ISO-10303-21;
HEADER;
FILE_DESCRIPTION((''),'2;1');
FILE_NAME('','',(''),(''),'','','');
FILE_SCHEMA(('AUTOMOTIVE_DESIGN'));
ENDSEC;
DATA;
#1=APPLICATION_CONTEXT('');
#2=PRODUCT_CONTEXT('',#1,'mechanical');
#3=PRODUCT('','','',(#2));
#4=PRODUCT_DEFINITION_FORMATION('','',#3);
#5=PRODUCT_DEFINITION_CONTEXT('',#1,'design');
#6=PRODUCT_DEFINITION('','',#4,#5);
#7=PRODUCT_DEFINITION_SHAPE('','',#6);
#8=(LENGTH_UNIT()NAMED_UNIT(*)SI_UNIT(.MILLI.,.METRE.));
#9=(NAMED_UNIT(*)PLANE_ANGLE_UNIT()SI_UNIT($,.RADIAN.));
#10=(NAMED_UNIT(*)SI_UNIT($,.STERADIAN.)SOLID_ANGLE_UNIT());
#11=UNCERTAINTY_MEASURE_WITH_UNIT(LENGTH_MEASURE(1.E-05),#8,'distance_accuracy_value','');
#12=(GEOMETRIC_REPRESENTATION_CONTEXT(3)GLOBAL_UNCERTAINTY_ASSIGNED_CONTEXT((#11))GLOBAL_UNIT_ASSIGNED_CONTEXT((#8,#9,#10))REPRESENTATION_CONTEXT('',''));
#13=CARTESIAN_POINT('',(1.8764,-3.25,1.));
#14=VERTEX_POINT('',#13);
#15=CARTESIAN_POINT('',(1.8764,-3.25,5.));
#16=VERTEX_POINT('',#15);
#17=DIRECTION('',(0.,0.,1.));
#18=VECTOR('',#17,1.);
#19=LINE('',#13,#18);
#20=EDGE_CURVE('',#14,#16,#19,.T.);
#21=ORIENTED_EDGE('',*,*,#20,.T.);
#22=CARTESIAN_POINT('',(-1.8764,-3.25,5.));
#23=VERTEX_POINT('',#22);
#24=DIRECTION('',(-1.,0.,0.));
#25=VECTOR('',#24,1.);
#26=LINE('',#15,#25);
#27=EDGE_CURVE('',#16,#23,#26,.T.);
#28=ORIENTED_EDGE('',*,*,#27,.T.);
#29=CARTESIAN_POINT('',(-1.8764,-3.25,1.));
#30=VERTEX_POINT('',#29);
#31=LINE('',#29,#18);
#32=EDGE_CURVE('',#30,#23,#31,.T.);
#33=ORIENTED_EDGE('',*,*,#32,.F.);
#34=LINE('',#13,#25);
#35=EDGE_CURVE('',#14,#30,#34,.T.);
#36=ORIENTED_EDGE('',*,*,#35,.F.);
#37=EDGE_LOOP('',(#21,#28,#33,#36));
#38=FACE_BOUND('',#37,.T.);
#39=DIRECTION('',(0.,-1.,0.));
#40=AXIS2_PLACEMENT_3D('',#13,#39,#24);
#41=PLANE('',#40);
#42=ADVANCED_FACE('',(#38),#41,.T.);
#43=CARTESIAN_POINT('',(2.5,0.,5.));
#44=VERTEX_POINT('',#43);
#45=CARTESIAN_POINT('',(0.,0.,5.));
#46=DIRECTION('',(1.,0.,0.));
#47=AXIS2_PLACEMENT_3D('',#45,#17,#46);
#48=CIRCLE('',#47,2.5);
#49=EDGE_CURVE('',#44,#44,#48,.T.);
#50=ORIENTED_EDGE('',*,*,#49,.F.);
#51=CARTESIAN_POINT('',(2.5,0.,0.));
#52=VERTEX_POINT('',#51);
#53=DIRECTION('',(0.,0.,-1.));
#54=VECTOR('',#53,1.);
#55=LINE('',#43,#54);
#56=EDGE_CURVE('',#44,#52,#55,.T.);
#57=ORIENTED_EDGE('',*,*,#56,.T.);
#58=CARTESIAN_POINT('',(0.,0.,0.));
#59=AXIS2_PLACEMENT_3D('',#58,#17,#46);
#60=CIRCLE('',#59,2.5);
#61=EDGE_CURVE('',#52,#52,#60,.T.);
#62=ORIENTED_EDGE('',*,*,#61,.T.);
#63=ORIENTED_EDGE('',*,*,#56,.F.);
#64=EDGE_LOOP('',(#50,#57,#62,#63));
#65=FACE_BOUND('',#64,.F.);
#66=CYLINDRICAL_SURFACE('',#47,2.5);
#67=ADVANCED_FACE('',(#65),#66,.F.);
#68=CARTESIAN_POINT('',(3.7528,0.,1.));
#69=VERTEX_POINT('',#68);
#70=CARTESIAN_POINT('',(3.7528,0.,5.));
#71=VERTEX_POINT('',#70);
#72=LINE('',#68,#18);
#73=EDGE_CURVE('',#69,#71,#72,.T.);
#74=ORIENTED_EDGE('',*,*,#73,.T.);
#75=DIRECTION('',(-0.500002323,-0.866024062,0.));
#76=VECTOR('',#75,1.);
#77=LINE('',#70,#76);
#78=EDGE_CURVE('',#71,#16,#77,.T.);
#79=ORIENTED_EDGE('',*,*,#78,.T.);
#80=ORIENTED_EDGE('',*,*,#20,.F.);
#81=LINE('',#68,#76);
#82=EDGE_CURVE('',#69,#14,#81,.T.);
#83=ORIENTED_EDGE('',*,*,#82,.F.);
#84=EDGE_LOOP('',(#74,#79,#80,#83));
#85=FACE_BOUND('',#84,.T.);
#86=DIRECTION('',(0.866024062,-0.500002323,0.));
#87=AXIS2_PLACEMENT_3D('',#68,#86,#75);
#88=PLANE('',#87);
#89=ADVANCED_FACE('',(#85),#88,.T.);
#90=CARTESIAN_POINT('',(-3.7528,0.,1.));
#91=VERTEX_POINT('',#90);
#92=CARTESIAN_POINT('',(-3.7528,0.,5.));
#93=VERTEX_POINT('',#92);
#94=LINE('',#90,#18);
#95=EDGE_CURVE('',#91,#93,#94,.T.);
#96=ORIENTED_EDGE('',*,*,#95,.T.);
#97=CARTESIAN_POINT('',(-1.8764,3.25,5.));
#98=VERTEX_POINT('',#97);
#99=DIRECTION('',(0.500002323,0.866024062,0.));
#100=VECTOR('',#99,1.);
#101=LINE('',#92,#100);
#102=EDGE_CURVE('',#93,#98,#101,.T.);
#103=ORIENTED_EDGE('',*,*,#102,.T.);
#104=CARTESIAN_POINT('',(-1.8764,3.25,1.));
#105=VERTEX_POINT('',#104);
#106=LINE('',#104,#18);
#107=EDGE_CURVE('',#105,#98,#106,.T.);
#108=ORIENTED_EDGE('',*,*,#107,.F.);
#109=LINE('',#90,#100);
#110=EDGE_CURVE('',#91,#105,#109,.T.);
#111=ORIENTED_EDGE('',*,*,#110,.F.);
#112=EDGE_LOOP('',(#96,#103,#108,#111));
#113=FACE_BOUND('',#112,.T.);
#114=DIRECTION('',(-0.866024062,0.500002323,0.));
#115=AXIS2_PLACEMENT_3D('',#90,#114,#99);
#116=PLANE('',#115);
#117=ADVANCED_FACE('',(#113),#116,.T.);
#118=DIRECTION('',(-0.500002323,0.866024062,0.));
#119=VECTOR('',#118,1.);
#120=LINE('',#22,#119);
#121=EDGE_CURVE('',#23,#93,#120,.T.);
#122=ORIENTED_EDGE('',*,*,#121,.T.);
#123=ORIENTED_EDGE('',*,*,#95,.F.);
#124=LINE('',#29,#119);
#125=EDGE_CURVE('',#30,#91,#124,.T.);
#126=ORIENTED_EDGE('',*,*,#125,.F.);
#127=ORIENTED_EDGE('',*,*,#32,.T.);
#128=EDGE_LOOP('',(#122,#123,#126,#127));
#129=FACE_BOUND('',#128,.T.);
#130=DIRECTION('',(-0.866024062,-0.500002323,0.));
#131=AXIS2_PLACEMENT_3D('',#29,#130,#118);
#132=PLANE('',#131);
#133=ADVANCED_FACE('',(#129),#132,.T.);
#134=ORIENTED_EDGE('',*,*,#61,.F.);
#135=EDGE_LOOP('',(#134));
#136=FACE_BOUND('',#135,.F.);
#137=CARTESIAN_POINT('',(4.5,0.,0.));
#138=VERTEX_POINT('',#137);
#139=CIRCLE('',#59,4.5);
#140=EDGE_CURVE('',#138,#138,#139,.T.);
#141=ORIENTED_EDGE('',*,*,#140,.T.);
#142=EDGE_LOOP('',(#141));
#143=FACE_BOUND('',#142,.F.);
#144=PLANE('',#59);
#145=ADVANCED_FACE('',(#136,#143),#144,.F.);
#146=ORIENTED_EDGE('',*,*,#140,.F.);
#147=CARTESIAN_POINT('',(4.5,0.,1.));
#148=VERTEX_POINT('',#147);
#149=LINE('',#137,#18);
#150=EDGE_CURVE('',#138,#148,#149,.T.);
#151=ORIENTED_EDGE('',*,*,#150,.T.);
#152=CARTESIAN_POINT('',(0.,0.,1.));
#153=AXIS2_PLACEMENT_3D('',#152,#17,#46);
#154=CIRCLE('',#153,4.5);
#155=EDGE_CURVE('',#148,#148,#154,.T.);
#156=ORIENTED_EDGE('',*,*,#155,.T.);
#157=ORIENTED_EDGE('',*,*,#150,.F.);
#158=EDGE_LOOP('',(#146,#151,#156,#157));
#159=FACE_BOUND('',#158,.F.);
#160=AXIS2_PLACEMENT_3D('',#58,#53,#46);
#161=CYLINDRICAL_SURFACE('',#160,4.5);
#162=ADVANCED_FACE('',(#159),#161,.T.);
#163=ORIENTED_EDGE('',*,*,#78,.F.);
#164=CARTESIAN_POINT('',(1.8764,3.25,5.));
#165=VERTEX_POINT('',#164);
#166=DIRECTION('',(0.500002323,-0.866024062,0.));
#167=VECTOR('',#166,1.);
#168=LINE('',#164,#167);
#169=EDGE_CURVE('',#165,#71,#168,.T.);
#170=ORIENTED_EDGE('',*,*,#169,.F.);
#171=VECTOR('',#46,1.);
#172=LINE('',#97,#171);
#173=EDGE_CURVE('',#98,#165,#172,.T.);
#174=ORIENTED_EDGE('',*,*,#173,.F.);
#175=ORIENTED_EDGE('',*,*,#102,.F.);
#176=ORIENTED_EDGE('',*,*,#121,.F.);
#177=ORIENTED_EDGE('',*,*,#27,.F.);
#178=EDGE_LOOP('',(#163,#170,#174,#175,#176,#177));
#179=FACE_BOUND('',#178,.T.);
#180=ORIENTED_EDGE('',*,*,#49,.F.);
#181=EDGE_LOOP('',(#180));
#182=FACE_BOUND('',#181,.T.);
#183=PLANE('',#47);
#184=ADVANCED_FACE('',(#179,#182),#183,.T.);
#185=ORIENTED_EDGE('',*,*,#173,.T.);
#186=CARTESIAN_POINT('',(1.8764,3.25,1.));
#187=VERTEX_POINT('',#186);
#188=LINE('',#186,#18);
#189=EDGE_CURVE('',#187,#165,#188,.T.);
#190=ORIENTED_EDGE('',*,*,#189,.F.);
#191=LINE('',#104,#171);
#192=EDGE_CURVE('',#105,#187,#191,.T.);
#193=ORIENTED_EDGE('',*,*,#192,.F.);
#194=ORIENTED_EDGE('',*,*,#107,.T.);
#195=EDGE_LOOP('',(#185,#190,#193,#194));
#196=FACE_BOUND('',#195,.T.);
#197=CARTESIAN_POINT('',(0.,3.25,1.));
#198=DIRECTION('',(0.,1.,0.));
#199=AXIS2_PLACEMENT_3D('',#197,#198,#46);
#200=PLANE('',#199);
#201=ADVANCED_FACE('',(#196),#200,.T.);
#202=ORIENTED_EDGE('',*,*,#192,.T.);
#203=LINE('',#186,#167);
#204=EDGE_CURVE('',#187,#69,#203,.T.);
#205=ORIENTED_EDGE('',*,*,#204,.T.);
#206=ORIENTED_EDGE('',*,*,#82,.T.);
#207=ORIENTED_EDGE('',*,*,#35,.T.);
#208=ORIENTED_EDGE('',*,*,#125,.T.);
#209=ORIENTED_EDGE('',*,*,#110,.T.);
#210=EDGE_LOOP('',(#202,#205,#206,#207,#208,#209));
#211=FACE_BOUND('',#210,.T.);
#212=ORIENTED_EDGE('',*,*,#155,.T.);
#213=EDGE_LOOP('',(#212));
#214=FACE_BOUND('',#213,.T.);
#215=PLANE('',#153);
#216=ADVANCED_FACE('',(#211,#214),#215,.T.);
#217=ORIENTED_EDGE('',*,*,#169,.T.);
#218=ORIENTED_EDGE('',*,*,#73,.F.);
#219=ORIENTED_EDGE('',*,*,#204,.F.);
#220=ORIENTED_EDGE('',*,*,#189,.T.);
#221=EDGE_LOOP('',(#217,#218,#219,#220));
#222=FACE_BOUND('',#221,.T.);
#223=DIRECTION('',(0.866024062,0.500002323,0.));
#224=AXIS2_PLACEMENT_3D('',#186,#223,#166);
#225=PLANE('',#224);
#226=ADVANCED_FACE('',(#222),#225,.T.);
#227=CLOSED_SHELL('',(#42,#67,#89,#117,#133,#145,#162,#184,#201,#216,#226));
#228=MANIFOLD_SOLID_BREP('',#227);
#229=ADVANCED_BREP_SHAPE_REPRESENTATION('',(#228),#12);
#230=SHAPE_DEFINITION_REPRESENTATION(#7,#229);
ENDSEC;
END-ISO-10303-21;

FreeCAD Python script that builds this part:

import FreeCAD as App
import Part
import Sketcher
Q = App.Units.Quantity

doc = App.newDocument("Part")
params = doc.addObject("Spreadsheet::Sheet", "Params")
for row, (alias, value) in enumerate([
    ("sketch1_diameter", "9 mm"),
    ("pad1_length", "1 mm"),
    ("pad2_length", "4 mm"),
    ("sketch3_diameter", "5 mm"),
], start=1):
    params.set(f"A{row}", alias)
    params.set(f"B{row}", "=" + value)
    params.setAlias(f"B{row}", alias)

body = doc.addObject("PartDesign::Body", "Body")

# Sketch on XY plane
sketch1 = body.newObject("Sketcher::SketchObject", "Sketch")
sketch1.AttachmentSupport = (doc.getObject("XY_Plane"), [""])
sketch1.MapMode = "FlatFace"
sketch1.addGeometry(Part.Circle(App.Vector(0, 0, 0), App.Vector(0, 0, 1), 4.5), False)
sketch1.addConstraint(Sketcher.Constraint("Coincident", 0, 3, -1, 1))
sketch1.addConstraint(Sketcher.Constraint("Diameter", 0, 9.0))
sketch1.setExpression("Constraints[1]", "Params.sketch1_diameter")
pad1 = body.newObject("PartDesign::Pad", "Pad")
pad1.Profile = sketch1
pad1.setExpression("Length", "Params.pad1_length")

# Sketch on XY plane
sketch2 = body.newObject("Sketcher::SketchObject", "Sketch001")
sketch2.AttachmentSupport = (doc.getObject("XY_Plane"), [""])
sketch2.MapMode = "FlatFace"
sketch2.AttachmentOffset = App.Placement(App.Vector(0, 0, 1), App.Rotation())
sketch2.addGeometry(Part.LineSegment(App.Vector(-1.8764, -3.25, 0), App.Vector(1.8764, -3.25, 0)), False)
sketch2.addGeometry(Part.LineSegment(App.Vector(1.8764, -3.25, 0), App.Vector(3.7528, 0, 0)), False)
sketch2.addGeometry(Part.LineSegment(App.Vector(3.7528, 0, 0), App.Vector(1.8764, 3.25, 0)), False)
sketch2.addGeometry(Part.LineSegment(App.Vector(1.8764, 3.25, 0), App.Vector(-1.8764, 3.25, 0)), False)
sketch2.addGeometry(Part.LineSegment(App.Vector(-1.8764, 3.25, 0), App.Vector(-3.7528, 0, 0)), False)
sketch2.addGeometry(Part.LineSegment(App.Vector(-3.7528, 0, 0), App.Vector(-1.8764, -3.25, 0)), False)
sketch2.addConstraint(Sketcher.Constraint("Coincident", 0, 2, 1, 1))
sketch2.addConstraint(Sketcher.Constraint("Coincident", 1, 2, 2, 1))
sketch2.addConstraint(Sketcher.Constraint("Coincident", 2, 2, 3, 1))
sketch2.addConstraint(Sketcher.Constraint("Coincident", 3, 2, 4, 1))
sketch2.addConstraint(Sketcher.Constraint("Coincident", 4, 2, 5, 1))
sketch2.addConstraint(Sketcher.Constraint("Coincident", 5, 2, 0, 1))
sketch2.addConstraint(Sketcher.Constraint("Horizontal", 0))
sketch2.addConstraint(Sketcher.Constraint("Horizontal", 3))
sketch2.addConstraint(Sketcher.Constraint("Symmetric", 0, 2, 3, 2, -1, 1))
sketch2.addConstraint(Sketcher.Constraint("Symmetric", 1, 2, 4, 2, -1, 1))
sketch2.addConstraint(Sketcher.Constraint("PointOnObject", 1, 2, -1))
sketch2.addConstraint(Sketcher.Constraint("Parallel", 2, 5))
sketch2.addConstraint(Sketcher.Constraint("Vertical", 0, 2, 2, 2))
sketch2.addConstraint(Sketcher.Constraint("DistanceY", 0, 2, 2, 2, 6.5))
sketch2.addConstraint(Sketcher.Constraint("Angle", 1, Q("59.9998 deg")))
sketch2.addConstraint(Sketcher.Constraint("DistanceX", 0, 1, 0, 2, 3.7528))
pad2 = body.newObject("PartDesign::Pad", "Pad001")
pad2.Profile = sketch2
pad2.setExpression("Length", "Params.pad2_length")

# Sketch on XY plane
sketch3 = body.newObject("Sketcher::SketchObject", "Sketch002")
sketch3.AttachmentSupport = (doc.getObject("XY_Plane"), [""])
sketch3.MapMode = "FlatFace"
sketch3.AttachmentOffset = App.Placement(App.Vector(0, 0, 5), App.Rotation())
sketch3.addGeometry(Part.Circle(App.Vector(0, 0, 0), App.Vector(0, 0, 1), 2.5), False)
sketch3.addConstraint(Sketcher.Constraint("Coincident", 0, 3, -1, 1))
sketch3.addConstraint(Sketcher.Constraint("Diameter", 0, 5.0))
sketch3.setExpression("Constraints[1]", "Params.sketch3_diameter")
pocket1 = body.newObject("PartDesign::Pocket", "Pocket")
pocket1.Profile = sketch3
pocket1.Type = "ThroughAll"

doc.recompute()
